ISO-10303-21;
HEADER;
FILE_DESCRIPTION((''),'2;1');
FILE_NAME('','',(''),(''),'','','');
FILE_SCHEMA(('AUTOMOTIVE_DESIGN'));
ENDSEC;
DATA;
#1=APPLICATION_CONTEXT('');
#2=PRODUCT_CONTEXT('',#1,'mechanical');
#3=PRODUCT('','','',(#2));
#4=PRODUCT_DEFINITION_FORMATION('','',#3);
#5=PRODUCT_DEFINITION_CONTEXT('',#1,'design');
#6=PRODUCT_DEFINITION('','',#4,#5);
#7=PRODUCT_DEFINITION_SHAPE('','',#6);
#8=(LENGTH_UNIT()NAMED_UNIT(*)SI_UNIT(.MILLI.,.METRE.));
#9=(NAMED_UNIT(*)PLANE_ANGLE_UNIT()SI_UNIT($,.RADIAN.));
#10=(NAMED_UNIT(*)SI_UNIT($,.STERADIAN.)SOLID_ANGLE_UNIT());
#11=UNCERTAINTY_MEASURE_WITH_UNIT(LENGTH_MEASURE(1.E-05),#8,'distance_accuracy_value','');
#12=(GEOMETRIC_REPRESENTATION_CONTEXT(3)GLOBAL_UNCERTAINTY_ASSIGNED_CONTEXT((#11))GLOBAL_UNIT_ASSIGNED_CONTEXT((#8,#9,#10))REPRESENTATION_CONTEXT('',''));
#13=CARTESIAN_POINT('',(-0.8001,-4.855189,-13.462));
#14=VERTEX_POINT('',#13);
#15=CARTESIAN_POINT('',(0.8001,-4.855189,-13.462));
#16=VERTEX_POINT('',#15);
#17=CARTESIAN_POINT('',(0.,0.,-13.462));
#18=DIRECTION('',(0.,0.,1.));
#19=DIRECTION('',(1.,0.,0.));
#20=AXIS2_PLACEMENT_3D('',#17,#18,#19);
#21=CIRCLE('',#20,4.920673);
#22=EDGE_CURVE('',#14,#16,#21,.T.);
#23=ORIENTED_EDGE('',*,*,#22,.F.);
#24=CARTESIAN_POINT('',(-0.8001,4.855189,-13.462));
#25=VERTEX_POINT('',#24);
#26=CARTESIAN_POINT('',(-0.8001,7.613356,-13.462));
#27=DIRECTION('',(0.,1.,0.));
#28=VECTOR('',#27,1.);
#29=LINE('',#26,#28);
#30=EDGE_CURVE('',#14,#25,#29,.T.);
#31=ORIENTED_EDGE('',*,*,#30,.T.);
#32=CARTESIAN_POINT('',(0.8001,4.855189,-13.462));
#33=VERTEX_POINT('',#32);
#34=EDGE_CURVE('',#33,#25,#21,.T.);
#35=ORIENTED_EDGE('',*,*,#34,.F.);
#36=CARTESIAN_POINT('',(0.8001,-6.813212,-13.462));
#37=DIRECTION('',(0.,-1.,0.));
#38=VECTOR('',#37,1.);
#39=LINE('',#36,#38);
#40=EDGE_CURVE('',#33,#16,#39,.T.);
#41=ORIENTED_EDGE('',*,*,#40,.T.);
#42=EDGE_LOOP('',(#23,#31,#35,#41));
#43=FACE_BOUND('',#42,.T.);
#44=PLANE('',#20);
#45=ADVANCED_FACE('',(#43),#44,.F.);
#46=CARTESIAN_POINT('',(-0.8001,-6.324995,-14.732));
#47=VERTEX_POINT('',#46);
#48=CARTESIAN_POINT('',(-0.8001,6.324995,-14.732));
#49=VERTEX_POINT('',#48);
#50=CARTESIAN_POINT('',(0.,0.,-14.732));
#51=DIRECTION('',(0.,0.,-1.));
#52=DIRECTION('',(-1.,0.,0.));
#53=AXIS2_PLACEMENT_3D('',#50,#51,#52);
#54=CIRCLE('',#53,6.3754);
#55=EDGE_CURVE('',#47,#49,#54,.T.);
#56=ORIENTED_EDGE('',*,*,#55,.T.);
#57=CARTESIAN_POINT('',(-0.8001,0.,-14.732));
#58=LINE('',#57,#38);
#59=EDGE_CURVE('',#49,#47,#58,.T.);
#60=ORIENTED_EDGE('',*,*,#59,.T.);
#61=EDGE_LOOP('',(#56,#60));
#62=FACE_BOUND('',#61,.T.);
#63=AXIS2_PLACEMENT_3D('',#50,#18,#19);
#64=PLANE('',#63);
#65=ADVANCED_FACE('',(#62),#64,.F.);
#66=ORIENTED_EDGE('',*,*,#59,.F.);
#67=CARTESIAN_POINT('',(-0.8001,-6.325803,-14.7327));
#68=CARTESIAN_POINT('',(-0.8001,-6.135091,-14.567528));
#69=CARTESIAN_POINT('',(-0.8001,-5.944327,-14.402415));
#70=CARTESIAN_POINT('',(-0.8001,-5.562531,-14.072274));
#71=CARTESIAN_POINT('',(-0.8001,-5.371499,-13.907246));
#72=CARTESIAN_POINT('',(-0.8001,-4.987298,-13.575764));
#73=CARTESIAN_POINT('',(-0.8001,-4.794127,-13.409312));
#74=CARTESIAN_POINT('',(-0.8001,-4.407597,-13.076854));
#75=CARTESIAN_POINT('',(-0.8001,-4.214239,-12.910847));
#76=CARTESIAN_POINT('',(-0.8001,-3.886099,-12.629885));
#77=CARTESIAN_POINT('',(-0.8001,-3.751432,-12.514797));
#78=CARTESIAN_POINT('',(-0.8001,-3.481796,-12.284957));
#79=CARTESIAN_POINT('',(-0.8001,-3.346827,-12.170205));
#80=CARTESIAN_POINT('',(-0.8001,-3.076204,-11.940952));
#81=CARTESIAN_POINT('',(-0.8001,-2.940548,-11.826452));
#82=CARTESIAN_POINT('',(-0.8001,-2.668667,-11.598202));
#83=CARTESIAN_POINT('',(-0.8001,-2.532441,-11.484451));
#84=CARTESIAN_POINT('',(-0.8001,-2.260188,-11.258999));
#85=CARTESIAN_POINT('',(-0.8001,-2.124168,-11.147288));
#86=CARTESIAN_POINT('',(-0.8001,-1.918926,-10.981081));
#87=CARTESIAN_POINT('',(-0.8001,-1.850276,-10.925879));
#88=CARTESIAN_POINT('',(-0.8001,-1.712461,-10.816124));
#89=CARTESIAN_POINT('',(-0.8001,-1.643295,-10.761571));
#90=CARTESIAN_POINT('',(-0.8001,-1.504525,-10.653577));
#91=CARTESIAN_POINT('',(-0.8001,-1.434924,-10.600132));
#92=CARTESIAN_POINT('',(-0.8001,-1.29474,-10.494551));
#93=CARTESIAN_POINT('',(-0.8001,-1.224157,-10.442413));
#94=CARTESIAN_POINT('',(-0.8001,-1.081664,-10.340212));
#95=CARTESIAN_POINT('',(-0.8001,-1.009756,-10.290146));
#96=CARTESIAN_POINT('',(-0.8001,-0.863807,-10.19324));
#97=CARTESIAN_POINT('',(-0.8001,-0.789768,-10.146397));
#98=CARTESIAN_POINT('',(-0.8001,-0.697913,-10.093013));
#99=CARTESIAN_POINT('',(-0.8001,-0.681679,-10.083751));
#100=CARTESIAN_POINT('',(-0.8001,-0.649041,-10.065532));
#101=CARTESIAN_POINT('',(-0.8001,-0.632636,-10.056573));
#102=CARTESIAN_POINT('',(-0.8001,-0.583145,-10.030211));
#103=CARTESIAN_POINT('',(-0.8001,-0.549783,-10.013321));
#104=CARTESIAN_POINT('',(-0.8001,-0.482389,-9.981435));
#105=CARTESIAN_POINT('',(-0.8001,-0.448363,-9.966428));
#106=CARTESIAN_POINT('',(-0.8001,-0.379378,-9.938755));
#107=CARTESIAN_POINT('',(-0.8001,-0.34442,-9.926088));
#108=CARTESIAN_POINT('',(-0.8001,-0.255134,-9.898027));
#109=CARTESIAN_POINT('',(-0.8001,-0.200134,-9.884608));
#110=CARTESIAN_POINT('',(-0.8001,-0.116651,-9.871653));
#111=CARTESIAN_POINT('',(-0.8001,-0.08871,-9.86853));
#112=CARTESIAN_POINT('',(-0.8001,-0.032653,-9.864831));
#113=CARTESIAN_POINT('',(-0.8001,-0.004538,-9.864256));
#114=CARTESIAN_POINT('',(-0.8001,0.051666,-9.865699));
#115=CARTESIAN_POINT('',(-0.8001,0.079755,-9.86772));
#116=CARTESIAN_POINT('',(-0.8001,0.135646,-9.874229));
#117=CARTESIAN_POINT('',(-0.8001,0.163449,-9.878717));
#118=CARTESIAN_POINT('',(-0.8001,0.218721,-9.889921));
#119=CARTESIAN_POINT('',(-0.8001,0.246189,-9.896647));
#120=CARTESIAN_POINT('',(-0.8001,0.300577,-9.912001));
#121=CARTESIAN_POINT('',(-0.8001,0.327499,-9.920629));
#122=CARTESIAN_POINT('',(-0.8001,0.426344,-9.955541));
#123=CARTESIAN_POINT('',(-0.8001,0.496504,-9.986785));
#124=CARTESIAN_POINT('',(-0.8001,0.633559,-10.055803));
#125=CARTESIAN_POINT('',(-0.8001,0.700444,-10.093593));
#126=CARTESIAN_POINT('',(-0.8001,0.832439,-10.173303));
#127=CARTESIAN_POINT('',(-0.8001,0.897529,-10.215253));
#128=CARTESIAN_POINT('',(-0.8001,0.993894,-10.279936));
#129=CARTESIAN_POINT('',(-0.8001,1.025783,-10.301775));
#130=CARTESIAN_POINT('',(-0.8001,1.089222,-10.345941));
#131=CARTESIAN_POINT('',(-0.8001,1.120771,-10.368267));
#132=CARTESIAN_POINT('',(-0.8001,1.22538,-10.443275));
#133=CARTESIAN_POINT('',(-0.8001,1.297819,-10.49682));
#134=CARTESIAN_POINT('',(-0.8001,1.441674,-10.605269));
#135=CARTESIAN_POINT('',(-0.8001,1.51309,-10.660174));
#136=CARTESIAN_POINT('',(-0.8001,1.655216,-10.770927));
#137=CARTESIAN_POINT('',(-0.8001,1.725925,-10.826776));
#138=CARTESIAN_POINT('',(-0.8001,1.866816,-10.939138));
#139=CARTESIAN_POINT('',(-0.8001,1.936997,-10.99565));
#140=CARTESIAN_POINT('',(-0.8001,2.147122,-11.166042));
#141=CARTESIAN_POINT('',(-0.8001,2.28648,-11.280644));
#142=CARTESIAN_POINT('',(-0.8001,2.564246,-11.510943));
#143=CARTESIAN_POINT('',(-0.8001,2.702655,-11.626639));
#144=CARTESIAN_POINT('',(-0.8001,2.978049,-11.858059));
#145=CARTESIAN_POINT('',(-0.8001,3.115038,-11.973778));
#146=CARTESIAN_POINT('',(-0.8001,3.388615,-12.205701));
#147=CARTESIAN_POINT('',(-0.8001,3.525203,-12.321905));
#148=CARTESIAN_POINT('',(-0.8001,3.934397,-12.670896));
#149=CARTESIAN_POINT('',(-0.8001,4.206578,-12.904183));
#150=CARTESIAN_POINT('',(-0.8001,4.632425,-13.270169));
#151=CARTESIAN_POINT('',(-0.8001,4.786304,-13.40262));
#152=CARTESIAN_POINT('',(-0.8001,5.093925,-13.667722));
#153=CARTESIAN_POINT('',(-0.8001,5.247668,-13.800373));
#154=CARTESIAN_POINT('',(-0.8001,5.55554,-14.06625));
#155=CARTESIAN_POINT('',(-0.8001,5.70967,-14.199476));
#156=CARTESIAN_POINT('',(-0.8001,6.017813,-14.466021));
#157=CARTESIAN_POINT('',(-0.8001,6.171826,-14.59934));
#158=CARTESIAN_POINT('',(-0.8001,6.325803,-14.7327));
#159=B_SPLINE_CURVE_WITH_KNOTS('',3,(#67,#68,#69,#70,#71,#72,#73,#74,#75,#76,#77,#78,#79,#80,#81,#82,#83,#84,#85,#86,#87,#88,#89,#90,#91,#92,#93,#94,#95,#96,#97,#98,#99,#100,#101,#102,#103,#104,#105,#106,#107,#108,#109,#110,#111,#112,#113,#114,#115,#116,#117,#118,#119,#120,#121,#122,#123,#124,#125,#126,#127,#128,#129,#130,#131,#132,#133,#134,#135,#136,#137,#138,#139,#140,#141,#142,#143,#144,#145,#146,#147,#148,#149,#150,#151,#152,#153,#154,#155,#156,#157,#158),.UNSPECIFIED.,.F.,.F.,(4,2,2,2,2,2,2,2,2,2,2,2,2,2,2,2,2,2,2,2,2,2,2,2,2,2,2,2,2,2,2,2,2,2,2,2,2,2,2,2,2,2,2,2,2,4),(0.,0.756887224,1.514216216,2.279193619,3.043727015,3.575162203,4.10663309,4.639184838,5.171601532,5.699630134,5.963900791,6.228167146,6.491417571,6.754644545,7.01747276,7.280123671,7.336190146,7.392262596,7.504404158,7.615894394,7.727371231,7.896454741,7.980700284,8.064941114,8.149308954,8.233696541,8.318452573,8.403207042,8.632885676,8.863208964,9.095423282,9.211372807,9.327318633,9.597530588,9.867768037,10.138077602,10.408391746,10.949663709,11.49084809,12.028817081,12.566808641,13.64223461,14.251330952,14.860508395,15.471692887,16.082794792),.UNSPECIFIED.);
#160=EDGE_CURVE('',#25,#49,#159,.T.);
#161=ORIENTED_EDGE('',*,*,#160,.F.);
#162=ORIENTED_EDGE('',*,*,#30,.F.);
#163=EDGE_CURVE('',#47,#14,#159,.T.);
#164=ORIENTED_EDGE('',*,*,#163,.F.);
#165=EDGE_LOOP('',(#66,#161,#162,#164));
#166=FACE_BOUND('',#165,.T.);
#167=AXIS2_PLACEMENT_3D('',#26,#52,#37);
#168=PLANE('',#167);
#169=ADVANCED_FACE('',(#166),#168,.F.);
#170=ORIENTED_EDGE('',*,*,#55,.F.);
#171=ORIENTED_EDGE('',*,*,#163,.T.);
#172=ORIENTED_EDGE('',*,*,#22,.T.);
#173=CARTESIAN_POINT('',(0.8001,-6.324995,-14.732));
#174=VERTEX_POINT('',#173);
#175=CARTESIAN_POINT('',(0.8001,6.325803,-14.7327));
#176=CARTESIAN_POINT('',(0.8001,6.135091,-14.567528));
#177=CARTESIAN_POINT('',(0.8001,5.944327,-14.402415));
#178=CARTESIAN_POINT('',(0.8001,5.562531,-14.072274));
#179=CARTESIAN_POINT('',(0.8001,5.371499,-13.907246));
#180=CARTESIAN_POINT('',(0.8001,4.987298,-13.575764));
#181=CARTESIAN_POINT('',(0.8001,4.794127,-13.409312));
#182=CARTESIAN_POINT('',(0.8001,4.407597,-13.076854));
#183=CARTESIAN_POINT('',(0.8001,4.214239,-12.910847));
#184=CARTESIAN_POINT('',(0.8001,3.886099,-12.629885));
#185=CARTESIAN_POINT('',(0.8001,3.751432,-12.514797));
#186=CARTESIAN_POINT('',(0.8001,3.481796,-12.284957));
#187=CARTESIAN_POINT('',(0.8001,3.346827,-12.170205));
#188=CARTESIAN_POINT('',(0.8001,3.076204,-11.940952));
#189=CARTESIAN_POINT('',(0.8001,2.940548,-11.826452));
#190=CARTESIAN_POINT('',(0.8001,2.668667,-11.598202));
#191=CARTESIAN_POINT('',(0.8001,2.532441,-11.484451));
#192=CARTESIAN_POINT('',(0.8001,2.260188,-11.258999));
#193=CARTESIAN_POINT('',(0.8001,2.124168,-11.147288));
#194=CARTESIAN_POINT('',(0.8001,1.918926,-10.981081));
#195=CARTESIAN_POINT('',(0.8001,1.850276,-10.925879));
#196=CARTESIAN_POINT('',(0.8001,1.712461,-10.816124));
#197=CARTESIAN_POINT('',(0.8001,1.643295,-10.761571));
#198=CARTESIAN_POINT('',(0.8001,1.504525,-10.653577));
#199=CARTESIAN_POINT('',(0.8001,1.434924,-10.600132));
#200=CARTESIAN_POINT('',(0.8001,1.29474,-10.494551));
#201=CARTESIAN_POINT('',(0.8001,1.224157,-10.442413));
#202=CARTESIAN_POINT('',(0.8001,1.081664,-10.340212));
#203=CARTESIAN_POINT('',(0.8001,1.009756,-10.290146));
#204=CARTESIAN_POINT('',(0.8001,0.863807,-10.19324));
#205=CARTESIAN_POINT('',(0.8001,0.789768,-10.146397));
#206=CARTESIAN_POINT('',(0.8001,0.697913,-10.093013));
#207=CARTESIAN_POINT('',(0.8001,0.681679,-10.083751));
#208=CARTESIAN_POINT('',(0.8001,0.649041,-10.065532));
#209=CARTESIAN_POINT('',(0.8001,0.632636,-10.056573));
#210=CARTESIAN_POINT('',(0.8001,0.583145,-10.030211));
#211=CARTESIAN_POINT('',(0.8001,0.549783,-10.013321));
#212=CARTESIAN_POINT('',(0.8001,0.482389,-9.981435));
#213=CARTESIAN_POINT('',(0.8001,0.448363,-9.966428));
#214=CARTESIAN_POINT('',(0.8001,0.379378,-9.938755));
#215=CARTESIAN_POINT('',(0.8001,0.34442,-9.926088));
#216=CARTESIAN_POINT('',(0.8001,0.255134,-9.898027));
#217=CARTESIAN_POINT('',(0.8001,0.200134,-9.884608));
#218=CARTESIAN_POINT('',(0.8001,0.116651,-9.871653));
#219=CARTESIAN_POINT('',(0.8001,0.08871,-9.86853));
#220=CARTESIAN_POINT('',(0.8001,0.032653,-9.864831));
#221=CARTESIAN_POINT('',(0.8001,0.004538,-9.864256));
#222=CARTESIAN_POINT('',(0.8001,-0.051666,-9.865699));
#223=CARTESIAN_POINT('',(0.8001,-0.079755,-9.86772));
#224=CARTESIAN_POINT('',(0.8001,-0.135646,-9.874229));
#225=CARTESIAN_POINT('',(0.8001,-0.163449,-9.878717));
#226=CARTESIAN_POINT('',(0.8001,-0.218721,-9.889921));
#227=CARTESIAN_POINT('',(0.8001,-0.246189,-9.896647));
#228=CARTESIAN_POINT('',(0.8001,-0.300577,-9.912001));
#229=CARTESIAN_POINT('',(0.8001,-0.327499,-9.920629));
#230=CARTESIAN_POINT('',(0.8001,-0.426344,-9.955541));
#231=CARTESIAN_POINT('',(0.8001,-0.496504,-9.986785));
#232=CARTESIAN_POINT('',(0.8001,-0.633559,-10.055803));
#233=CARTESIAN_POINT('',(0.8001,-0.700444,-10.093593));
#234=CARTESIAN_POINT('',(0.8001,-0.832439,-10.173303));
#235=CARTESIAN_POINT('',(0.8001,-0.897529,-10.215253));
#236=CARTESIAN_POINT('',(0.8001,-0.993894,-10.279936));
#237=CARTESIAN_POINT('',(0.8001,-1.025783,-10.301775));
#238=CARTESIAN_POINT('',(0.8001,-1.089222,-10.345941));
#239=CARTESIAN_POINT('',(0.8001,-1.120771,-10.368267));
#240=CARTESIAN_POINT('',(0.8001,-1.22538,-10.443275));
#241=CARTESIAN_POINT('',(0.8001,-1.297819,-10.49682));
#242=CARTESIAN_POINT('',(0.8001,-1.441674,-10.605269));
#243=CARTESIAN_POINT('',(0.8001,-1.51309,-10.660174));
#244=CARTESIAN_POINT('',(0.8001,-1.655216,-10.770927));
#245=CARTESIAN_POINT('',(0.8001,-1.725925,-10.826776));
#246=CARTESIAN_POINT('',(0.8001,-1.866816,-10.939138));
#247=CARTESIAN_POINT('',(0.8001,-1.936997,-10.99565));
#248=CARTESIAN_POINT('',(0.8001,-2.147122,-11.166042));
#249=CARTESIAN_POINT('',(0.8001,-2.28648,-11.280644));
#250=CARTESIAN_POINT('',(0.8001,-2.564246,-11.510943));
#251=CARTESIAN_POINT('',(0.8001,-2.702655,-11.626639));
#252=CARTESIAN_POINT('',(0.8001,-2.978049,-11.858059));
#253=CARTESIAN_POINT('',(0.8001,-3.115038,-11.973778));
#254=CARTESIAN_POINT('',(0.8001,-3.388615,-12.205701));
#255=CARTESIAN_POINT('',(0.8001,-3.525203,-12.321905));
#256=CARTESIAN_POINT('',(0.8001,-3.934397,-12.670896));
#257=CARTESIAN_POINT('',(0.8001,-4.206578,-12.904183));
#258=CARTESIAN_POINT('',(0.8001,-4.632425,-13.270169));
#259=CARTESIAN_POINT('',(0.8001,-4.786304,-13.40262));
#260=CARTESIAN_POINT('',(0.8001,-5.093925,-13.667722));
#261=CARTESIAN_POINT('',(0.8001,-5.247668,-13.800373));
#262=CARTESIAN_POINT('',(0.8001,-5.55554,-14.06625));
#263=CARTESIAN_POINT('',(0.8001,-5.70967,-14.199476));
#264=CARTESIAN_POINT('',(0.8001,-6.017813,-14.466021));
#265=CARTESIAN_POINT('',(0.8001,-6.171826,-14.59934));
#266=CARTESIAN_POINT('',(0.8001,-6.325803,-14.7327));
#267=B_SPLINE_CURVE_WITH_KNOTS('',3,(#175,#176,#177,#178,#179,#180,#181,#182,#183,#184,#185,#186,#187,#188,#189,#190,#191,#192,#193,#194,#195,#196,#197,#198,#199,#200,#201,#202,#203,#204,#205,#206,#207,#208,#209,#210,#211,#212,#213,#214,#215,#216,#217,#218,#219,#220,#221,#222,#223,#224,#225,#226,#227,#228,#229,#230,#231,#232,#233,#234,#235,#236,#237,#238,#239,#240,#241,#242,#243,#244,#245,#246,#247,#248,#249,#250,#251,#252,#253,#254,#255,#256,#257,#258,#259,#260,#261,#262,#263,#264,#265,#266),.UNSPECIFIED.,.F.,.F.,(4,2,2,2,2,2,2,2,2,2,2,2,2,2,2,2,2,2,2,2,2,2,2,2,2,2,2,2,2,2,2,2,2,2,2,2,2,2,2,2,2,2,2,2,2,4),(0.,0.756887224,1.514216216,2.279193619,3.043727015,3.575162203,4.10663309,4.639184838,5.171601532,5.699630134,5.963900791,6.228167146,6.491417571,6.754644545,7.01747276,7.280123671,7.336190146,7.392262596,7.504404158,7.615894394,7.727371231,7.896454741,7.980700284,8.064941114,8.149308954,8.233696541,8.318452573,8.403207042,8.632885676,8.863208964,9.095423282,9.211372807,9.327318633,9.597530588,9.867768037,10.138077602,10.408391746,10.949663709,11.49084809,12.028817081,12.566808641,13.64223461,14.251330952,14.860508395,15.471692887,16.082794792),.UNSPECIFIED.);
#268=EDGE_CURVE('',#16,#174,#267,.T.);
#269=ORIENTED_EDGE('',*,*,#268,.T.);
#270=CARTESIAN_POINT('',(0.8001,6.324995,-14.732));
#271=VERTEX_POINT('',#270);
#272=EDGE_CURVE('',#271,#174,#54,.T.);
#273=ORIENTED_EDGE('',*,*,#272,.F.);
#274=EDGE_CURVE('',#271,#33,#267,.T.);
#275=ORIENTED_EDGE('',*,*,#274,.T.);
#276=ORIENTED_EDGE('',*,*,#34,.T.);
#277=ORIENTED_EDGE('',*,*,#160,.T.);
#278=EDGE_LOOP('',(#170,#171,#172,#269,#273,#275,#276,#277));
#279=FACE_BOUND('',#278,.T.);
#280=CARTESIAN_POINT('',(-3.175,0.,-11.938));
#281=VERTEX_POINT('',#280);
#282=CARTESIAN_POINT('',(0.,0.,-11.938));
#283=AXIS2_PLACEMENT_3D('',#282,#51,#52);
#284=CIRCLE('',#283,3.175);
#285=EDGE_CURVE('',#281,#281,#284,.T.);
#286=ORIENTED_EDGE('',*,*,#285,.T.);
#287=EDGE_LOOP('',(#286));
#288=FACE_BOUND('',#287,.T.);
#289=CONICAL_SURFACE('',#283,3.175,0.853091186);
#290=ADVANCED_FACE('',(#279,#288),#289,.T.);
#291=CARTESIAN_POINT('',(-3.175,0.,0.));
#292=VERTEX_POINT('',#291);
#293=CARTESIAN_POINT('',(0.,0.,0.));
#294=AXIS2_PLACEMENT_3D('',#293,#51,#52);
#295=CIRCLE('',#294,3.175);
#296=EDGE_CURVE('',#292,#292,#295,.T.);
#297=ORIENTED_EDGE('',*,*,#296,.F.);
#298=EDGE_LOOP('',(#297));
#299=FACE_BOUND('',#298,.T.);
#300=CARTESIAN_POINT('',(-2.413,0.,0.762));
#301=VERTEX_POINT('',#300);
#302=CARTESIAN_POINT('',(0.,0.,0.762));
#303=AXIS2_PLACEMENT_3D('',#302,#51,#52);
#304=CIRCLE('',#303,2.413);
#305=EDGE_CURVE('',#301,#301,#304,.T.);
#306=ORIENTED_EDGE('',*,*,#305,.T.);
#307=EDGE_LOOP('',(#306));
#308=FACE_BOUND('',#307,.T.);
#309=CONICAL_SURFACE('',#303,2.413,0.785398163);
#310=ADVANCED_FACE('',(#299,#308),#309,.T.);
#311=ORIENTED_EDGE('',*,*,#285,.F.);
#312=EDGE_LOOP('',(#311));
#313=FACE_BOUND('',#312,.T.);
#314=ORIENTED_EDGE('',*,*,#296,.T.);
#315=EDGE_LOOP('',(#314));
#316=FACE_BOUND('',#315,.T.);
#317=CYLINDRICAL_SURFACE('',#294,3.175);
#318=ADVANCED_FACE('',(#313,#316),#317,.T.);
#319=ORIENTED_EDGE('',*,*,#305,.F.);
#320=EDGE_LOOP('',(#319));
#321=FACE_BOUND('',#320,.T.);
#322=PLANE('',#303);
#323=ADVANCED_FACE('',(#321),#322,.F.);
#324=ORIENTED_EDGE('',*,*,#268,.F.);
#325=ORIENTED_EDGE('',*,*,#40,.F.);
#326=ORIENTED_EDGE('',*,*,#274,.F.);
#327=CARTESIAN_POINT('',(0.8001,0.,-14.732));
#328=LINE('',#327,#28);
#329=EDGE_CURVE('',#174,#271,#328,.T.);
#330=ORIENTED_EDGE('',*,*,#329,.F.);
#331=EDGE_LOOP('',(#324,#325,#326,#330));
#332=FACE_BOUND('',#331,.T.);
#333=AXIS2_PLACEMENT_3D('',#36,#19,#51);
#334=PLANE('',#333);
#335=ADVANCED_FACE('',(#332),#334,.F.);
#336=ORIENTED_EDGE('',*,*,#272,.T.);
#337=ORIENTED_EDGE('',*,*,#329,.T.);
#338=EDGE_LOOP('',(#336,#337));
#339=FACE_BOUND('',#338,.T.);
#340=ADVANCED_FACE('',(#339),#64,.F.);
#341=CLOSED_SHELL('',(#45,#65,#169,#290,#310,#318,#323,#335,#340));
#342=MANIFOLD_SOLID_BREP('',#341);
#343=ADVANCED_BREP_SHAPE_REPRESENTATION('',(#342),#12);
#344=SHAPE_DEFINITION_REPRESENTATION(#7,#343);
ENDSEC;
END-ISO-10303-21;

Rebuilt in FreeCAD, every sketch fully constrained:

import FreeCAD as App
import Part
import Sketcher

V = App.Vector
Q = App.Units.Quantity

doc = App.newDocument("Part")
body = doc.addObject("PartDesign::Body", "Body")

sketch1 = body.newObject("Sketcher::SketchObject", "Sketch")
sketch1.AttachmentSupport = (doc.getObject("XZ_Plane"), [""])
sketch1.MapMode = "FlatFace"
sketch1.addGeometry(Part.LineSegment(V(0, -14.7, 0), V(0, 0.8, 0)), False)
sketch1.addGeometry(Part.LineSegment(V(0, 0.8, 0), V(2.4, 0.8, 0)), False)
sketch1.addGeometry(Part.LineSegment(V(2.4, 0.8, 0), V(3.2, 0, 0)), False)
sketch1.addGeometry(Part.LineSegment(V(3.2, 0, 0), V(3.2, -11.9, 0)), False)
sketch1.addGeometry(Part.LineSegment(V(3.2, -11.9, 0), V(6.4, -14.7, 0)), False)
sketch1.addGeometry(Part.LineSegment(V(6.4, -14.7, 0), V(0, -14.7, 0)), False)
sketch1.addConstraint(Sketcher.Constraint("Coincident", 0, 2, 1, 1))
sketch1.addConstraint(Sketcher.Constraint("Coincident", 1, 2, 2, 1))
sketch1.addConstraint(Sketcher.Constraint("Coincident", 2, 2, 3, 1))
sketch1.addConstraint(Sketcher.Constraint("Coincident", 3, 2, 4, 1))
sketch1.addConstraint(Sketcher.Constraint("Coincident", 4, 2, 5, 1))
sketch1.addConstraint(Sketcher.Constraint("Coincident", 5, 2, 0, 1))
sketch1.addConstraint(Sketcher.Constraint("Vertical", 0))
sketch1.addConstraint(Sketcher.Constraint("Horizontal", 1))
sketch1.addConstraint(Sketcher.Constraint("Vertical", 3))
sketch1.addConstraint(Sketcher.Constraint("Horizontal", 5))
sketch1.addConstraint(Sketcher.Constraint("PointOnObject", 0, 2, -2))
sketch1.addConstraint(Sketcher.Constraint("PointOnObject", 2, 2, -1))
sketch1.addConstraint(Sketcher.Constraint("Angle", 2, Q("-45 deg")))
sketch1.addConstraint(Sketcher.Constraint("DistanceY", 0, 1, 0, 2, Q("0.61 in")))
sketch1.addConstraint(Sketcher.Constraint("DistanceY", 3, 2, 3, 1, Q("0.47 in")))
sketch1.addConstraint(Sketcher.Constraint("DistanceY", 3, 2, 1, 2, Q("0.5 in")))
sketch1.addConstraint(Sketcher.Constraint("DistanceX", 1, 1, 1, 2, Q("0.095 in")))
sketch1.addConstraint(Sketcher.Constraint("DistanceX", 5, 2, 5, 1, Q("0.251 in")))
revolution = body.newObject("PartDesign::Revolution", "Revolution")
revolution.Profile = sketch1
revolution.ReferenceAxis = (sketch1, ["V_Axis"])
revolution.Angle = 360

sketch2 = body.newObject("Sketcher::SketchObject", "Sketch001")
sketch2.AttachmentSupport = (doc.getObject("XY_Plane"), [""])
sketch2.MapMode = "FlatFace"
sketch2.AttachmentOffset = App.Placement(V(0, 0, -0.58 * 25.4), App.Rotation())
sketch2.addGeometry(Part.LineSegment(V(0.8, 7.6, 0), V(0.8, -6.8, 0)), False)
sketch2.addGeometry(Part.LineSegment(V(0.8, -6.8, 0), V(-0.8, -6.8, 0)), False)
sketch2.addGeometry(Part.LineSegment(V(-0.8, -6.8, 0), V(-0.8, 7.6, 0)), False)
sketch2.addGeometry(Part.LineSegment(V(-0.8, 7.6, 0), V(0.8, 7.6, 0)), False)
sketch2.addConstraint(Sketcher.Constraint("Coincident", 0, 2, 1, 1))
sketch2.addConstraint(Sketcher.Constraint("Coincident", 1, 2, 2, 1))
sketch2.addConstraint(Sketcher.Constraint("Coincident", 2, 2, 3, 1))
sketch2.addConstraint(Sketcher.Constraint("Coincident", 3, 2, 0, 1))
sketch2.addConstraint(Sketcher.Constraint("Vertical", 0))
sketch2.addConstraint(Sketcher.Constraint("Horizontal", 1))
sketch2.addConstraint(Sketcher.Constraint("Vertical", 2))
sketch2.addConstraint(Sketcher.Constraint("Horizontal", 3))
sketch2.addConstraint(Sketcher.Constraint("DistanceX", 1, 2, 1, 1, Q("0.063 in")))
sketch2.addConstraint(Sketcher.Constraint("DistanceX", -1, 1, 0, 2, Q("0.0315 in")))
sketch2.addConstraint(Sketcher.Constraint("DistanceY", 0, 2, 0, 1, Q("14.426568 mm")))
sketch2.addConstraint(Sketcher.Constraint("DistanceY", 0, 2, -1, 1, Q("6.813212 mm")))
pocket1 = body.newObject("PartDesign::Pocket", "Pocket")
pocket1.Profile = sketch2
pocket1.Length = Q("0.05 in")
pocket1.Reversed = True

doc.recompute()
